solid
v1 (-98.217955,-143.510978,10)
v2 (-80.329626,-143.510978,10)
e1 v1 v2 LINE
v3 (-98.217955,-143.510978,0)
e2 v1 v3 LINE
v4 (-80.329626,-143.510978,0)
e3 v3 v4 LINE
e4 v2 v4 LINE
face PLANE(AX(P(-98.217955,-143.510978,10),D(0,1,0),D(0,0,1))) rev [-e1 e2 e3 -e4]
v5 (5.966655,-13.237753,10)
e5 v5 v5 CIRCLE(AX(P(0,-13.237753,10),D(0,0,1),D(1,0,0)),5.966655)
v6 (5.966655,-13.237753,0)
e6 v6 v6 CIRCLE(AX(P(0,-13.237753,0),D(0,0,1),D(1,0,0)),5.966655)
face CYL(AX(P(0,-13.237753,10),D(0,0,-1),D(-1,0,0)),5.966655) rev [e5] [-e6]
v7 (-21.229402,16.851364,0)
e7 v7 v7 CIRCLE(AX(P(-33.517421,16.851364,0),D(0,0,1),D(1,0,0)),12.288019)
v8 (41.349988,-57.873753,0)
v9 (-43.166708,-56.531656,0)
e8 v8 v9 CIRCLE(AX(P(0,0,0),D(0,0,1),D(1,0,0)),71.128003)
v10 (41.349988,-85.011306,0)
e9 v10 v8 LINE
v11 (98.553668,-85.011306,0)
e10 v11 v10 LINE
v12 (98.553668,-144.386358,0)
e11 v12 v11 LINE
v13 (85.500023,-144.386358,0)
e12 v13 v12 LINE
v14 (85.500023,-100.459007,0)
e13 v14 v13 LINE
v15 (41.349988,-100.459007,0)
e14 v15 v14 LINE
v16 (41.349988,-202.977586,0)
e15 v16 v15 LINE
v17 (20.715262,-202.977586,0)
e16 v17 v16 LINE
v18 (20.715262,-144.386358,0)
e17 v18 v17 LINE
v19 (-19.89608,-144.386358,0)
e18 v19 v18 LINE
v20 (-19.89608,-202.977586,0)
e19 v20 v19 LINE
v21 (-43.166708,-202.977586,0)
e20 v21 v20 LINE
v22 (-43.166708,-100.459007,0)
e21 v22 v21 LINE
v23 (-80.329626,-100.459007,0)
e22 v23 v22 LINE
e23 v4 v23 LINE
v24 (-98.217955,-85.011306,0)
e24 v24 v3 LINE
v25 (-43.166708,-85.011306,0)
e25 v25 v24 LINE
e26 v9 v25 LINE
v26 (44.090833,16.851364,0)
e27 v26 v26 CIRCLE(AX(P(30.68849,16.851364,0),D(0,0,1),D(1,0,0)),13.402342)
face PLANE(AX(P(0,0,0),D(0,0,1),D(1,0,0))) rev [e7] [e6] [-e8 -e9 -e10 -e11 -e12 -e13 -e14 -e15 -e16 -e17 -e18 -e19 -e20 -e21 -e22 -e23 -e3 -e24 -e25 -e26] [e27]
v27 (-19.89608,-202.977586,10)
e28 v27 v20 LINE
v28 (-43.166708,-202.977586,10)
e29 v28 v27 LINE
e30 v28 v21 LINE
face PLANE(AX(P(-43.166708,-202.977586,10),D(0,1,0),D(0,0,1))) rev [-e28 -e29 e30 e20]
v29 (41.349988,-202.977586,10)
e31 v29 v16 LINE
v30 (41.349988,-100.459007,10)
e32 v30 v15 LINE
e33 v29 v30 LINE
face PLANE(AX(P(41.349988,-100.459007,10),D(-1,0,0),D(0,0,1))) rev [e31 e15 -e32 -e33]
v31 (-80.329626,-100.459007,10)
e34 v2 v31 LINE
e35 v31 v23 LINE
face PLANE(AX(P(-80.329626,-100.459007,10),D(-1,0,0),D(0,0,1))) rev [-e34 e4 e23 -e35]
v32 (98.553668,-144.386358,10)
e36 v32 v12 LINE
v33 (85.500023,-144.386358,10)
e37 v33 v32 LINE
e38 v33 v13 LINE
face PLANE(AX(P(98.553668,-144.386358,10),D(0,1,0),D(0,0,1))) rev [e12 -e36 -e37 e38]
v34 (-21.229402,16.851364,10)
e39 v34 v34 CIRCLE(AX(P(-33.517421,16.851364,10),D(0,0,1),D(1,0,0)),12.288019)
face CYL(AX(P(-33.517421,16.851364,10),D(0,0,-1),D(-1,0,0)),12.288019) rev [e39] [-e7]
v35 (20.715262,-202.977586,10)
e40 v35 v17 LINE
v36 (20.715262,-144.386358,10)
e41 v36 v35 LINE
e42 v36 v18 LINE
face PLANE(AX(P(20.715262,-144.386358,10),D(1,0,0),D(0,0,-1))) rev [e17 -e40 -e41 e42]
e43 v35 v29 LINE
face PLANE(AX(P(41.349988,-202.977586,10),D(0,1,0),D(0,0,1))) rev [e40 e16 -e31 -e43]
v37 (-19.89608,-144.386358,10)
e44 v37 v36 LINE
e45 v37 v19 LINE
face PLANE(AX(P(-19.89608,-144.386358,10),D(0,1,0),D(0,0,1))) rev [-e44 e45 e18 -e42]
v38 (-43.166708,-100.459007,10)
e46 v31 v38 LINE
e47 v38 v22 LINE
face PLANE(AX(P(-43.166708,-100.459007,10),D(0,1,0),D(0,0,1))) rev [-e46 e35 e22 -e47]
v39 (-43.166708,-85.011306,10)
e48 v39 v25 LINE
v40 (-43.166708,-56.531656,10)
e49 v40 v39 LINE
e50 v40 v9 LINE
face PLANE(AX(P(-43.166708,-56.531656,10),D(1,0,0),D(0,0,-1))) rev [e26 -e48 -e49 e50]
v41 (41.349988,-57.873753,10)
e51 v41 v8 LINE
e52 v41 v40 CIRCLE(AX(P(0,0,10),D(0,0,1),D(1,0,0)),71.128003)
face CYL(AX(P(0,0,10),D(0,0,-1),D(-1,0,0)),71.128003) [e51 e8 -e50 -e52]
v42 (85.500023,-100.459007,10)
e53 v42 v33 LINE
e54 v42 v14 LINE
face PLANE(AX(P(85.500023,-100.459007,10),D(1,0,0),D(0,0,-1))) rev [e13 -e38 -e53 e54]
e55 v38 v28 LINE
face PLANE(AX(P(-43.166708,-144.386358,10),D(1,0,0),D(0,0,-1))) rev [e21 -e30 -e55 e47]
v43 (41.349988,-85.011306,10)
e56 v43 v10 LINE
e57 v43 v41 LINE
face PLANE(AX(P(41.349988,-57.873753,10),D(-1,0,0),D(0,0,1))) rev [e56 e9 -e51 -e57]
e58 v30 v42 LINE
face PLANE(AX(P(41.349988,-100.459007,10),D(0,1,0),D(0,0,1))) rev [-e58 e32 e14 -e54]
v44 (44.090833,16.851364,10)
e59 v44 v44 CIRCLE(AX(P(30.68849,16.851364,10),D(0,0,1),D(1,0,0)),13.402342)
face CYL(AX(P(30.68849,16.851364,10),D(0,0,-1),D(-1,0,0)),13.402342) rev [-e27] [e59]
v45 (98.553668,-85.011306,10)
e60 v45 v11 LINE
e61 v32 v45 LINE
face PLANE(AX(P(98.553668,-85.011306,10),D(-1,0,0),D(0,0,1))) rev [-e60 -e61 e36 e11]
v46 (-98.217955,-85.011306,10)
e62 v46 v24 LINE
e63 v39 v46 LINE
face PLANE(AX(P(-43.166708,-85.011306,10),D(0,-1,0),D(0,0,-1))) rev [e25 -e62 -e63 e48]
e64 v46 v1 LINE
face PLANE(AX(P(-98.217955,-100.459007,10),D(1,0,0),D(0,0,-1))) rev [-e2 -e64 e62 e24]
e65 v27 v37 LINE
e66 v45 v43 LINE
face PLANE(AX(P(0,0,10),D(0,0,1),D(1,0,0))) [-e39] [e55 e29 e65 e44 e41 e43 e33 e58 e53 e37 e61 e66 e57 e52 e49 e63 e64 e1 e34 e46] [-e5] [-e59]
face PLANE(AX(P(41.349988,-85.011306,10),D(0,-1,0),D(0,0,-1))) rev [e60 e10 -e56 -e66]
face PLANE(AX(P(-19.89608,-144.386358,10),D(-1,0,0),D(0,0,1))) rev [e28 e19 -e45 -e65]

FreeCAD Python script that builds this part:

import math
import FreeCAD as App
import Part
import Sketcher
from FreeCAD import Vector

doc = App.newDocument("Part")
params = doc.addObject("Spreadsheet::Sheet", "Params")
for row, (alias, value) in enumerate([
    ("pad1_length", "10 mm"),
], start=1):
    params.set(f"A{row}", alias)
    params.set(f"B{row}", "=" + value)
    params.setAlias(f"B{row}", alias)

body = doc.addObject("PartDesign::Body", "Body")

# Sketch on XY plane
sketch1 = doc.addObject("Sketcher::SketchObject", "Sketch")
body.addObject(sketch1)
sketch1.AttachmentSupport = (doc.XY_Plane, [""])
sketch1.MapMode = "FlatFace"
sketch1.addGeometry([
    Part.LineSegment(Vector(-43, -100, 0), Vector(-43, -203, 0)),  # 0
    Part.LineSegment(Vector(-43, -203, 0), Vector(-20, -203, 0)),  # 1
    Part.LineSegment(Vector(-20, -203, 0), Vector(-20, -144, 0)),  # 2
    Part.LineSegment(Vector(-20, -144, 0), Vector(21, -144, 0)),  # 3
    Part.LineSegment(Vector(21, -144, 0), Vector(21, -203, 0)),  # 4
    Part.LineSegment(Vector(21, -203, 0), Vector(41, -203, 0)),  # 5
    Part.LineSegment(Vector(41, -203, 0), Vector(41, -100, 0)),  # 6
    Part.LineSegment(Vector(41, -100, 0), Vector(86, -100, 0)),  # 7
    Part.LineSegment(Vector(86, -100, 0), Vector(86, -144, 0)),  # 8
    Part.LineSegment(Vector(86, -144, 0), Vector(99, -144, 0)),  # 9
    Part.LineSegment(Vector(99, -144, 0), Vector(99, -85, 0)),  # 10
    Part.LineSegment(Vector(99, -85, 0), Vector(41, -85, 0)),  # 11
    Part.LineSegment(Vector(41, -85, 0), Vector(41, -58, 0)),  # 12
    Part.ArcOfCircle(Part.Circle(Vector(0, 0, 0), Vector(0, 0, 1), 71), math.radians(-54), math.radians(233)),  # 13
    Part.LineSegment(Vector(-43, -57, 0), Vector(-43, -85, 0)),  # 14
    Part.LineSegment(Vector(-43, -85, 0), Vector(-98, -85, 0)),  # 15
    Part.LineSegment(Vector(-98, -85, 0), Vector(-98, -144, 0)),  # 16
    Part.LineSegment(Vector(-98, -144, 0), Vector(-80, -144, 0)),  # 17
    Part.LineSegment(Vector(-80, -144, 0), Vector(-80, -100, 0)),  # 18
    Part.LineSegment(Vector(-80, -100, 0), Vector(-43, -100, 0)),  # 19
    Part.Circle(Vector(0, -13, 0), Vector(0, 0, 1), 6),  # 20
    Part.Circle(Vector(-34, 17, 0), Vector(0, 0, 1), 12),  # 21
    Part.Circle(Vector(31, 17, 0), Vector(0, 0, 1), 13),  # 22
], False)
sketch1.addConstraint([
    Sketcher.Constraint("Coincident", 0, 2, 1, 1),
    Sketcher.Constraint("Coincident", 1, 2, 2, 1),
    Sketcher.Constraint("Coincident", 2, 2, 3, 1),
    Sketcher.Constraint("Coincident", 3, 2, 4, 1),
    Sketcher.Constraint("Coincident", 4, 2, 5, 1),
    Sketcher.Constraint("Coincident", 5, 2, 6, 1),
    Sketcher.Constraint("Coincident", 6, 2, 7, 1),
    Sketcher.Constraint("Coincident", 7, 2, 8, 1),
    Sketcher.Constraint("Coincident", 8, 2, 9, 1),
    Sketcher.Constraint("Coincident", 9, 2, 10, 1),
    Sketcher.Constraint("Coincident", 10, 2, 11, 1),
    Sketcher.Constraint("Coincident", 11, 2, 12, 1),
    Sketcher.Constraint("Coincident", 12, 2, 13, 1),
    Sketcher.Constraint("Coincident", 13, 2, 14, 1),
    Sketcher.Constraint("Coincident", 14, 2, 15, 1),
    Sketcher.Constraint("Coincident", 15, 2, 16, 1),
    Sketcher.Constraint("Coincident", 16, 2, 17, 1),
    Sketcher.Constraint("Coincident", 17, 2, 18, 1),
    Sketcher.Constraint("Coincident", 18, 2, 19, 1),
    Sketcher.Constraint("Coincident", 19, 2, 0, 1),
    Sketcher.Constraint("Vertical", 0),
    Sketcher.Constraint("Horizontal", 1),
    Sketcher.Constraint("Vertical", 2),
    Sketcher.Constraint("Horizontal", 3),
    Sketcher.Constraint("Vertical", 4),
    Sketcher.Constraint("Horizontal", 5),
    Sketcher.Constraint("Vertical", 6),
    Sketcher.Constraint("Horizontal", 7),
    Sketcher.Constraint("Vertical", 8),
    Sketcher.Constraint("Horizontal", 9),
    Sketcher.Constraint("Vertical", 10),
    Sketcher.Constraint("Horizontal", 11),
    Sketcher.Constraint("Vertical", 12),
    Sketcher.Constraint("Vertical", 14),
    Sketcher.Constraint("Horizontal", 15),
    Sketcher.Constraint("Vertical", 16),
    Sketcher.Constraint("Horizontal", 17),
    Sketcher.Constraint("Vertical", 18),
    Sketcher.Constraint("Horizontal", 19),
    Sketcher.Constraint("Coincident", 13, 3, -1, 1),
    Sketcher.Constraint("PointOnObject", 20, 3, -2),
    Sketcher.Constraint("Horizontal", 21, 3, 22, 3),
    Sketcher.Constraint("Horizontal", 1, 2, 4, 2),
    Sketcher.Constraint("Horizontal", 3, 2, 8, 2),
    Sketcher.Constraint("Horizontal", 11, 2, 14, 2),
    Sketcher.Constraint("Horizontal", 7, 2, 18, 2),
    Sketcher.Constraint("Vertical", 6, 2, 11, 2),
    Sketcher.Constraint("Vertical", 0, 2, 13, 2),
    Sketcher.Constraint("Diameter", 20, 11.93331),
    Sketcher.Constraint("Diameter", 21, 24.576037),
    Sketcher.Constraint("Diameter", 22, 26.804685),
    Sketcher.Constraint("Radius", 13, 71.128003),
    Sketcher.Constraint("DistanceY", 12, 2, 20, 3, 44.636),
    Sketcher.Constraint("DistanceX", 11, 2, 11, 1, 57.20368),
    Sketcher.Constraint("DistanceX", 17, 1, 17, 2, 17.888329),
    Sketcher.Constraint("DistanceY", 0, 2, 0, 1, 102.51858),
    Sketcher.Constraint("DistanceY", 2, 1, 2, 2, 58.591229),
    Sketcher.Constraint("DistanceY", 10, 1, 10, 2, 59.375052),
    Sketcher.Constraint("DistanceY", 14, 2, 14, 1, 28.479651),
    Sketcher.Constraint("DistanceY", 16, 2, 16, 1, 58.499672),
    Sketcher.Constraint("DistanceX", 0, 2, 22, 3, 73.855198),
    Sketcher.Constraint("DistanceX", 1, 1, 1, 2, 23.270628),
    Sketcher.Constraint("DistanceX", 3, 1, 3, 2, 40.611342),
    Sketcher.Constraint("DistanceX", 5, 1, 5, 2, 20.634726),
    Sketcher.Constraint("DistanceX", 7, 1, 7, 2, 44.150034),
    Sketcher.Constraint("DistanceX", 15, 2, 15, 1, 55.051247),
    Sketcher.Constraint("DistanceY", 12, 1, 12, 2, 27.137553),
    Sketcher.Constraint("DistanceX", 21, 3, -1, 1, 33.517421),
    Sketcher.Constraint("DistanceY", 0, 2, 21, 3, 219.82895),
])
pad1 = doc.addObject("PartDesign::Pad", "Pad")
body.addObject(pad1)
pad1.Profile = sketch1
pad1.setExpression("Length", "Params.pad1_length")

doc.recompute()
